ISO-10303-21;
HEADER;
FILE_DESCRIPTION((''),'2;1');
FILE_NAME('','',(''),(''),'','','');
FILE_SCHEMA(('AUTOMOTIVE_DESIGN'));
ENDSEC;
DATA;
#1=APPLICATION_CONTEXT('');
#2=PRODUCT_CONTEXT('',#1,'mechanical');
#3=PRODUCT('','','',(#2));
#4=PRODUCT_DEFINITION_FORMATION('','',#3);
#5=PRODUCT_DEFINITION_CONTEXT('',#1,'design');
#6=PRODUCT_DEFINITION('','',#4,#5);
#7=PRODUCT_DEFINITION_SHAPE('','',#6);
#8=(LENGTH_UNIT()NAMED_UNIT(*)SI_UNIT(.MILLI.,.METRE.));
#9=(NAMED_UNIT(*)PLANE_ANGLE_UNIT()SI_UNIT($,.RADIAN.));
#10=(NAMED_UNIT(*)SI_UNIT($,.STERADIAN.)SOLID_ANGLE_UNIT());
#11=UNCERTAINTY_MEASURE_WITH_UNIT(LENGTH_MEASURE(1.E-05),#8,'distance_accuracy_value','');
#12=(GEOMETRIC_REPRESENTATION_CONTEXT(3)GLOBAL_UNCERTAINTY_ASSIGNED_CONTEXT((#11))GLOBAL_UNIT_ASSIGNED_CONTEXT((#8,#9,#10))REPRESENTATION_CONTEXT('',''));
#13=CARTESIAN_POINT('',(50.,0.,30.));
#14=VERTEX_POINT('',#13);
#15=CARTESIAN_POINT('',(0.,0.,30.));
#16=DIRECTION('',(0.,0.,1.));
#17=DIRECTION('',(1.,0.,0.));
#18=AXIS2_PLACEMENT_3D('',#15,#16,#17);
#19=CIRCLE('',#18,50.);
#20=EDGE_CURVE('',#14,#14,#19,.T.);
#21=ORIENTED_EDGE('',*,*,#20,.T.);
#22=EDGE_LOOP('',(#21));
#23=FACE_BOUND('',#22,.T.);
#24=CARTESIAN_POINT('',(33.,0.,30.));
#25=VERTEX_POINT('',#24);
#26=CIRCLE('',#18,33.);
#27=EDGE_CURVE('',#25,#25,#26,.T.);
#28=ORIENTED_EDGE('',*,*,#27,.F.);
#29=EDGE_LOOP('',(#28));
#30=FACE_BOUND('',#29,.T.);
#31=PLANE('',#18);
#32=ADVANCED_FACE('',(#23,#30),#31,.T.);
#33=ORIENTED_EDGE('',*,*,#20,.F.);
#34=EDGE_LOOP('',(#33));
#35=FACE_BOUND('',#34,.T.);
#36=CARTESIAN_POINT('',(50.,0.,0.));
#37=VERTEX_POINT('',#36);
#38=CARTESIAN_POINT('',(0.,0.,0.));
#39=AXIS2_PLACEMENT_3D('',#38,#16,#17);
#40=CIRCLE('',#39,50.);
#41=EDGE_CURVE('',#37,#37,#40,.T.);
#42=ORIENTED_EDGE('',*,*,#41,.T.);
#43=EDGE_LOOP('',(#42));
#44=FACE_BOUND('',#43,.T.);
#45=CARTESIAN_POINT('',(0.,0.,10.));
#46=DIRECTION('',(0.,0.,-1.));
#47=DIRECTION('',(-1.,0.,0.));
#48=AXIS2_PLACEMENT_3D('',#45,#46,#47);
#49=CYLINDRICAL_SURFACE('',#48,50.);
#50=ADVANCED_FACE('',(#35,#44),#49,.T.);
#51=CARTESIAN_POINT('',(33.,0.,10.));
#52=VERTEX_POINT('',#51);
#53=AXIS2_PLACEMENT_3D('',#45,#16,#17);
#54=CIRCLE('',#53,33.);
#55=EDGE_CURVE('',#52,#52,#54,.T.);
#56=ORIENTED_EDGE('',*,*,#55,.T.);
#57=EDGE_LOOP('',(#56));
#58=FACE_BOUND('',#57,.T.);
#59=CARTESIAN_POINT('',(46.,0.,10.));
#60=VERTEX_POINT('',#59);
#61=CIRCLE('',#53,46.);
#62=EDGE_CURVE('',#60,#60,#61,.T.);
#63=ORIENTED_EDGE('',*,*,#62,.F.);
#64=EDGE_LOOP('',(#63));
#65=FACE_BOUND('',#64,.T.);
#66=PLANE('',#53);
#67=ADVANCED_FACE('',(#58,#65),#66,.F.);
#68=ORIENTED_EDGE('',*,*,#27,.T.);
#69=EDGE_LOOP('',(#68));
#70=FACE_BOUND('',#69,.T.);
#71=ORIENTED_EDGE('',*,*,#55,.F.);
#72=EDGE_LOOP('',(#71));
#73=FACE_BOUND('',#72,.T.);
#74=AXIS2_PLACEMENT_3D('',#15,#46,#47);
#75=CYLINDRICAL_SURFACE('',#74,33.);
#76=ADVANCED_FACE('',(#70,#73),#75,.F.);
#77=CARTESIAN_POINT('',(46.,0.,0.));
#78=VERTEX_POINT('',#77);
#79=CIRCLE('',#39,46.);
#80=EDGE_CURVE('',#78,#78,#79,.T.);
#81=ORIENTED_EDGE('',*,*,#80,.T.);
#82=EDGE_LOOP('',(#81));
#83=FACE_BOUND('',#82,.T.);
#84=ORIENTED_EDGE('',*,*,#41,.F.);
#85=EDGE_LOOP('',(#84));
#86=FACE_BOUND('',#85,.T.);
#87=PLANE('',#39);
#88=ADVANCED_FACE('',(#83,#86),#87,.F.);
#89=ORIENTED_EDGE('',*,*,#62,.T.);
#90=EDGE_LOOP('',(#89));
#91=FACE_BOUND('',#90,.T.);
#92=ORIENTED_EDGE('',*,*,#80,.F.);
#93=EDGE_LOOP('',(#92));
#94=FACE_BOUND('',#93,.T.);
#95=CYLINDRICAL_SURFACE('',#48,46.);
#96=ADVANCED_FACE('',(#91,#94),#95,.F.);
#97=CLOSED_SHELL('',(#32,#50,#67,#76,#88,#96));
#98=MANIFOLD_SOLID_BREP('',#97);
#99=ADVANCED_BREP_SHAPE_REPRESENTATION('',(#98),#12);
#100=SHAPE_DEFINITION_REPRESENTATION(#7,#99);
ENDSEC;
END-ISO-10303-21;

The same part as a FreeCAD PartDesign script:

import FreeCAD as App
import Part
import Sketcher
from FreeCAD import Vector
Q = App.Units.Quantity

doc = App.newDocument("Part")
body = doc.addObject("PartDesign::Body", "Body")

# Sketch on XY plane
sketch1 = body.newObject("Sketcher::SketchObject", "Sketch")
sketch1.AttachmentSupport = (doc.getObject("XY_Plane"), [""])
sketch1.MapMode = "FlatFace"
sketch1.addGeometry([
    Part.Circle(Vector(0, 0, 0), Vector(0, 0, 1), 50),
    Part.Circle(Vector(0, 0, 0), Vector(0, 0, 1), 46),
], False)
sketch1.addConstraint([
    Sketcher.Constraint("Coincident", 0, 3, -1, 1),
    Sketcher.Constraint("Coincident", 1, 3, -1, 1),
    Sketcher.Constraint("Diameter", 0, Q("100 mm")),
    Sketcher.Constraint("Diameter", 1, Q("92 mm")),
])
pad1 = body.newObject("PartDesign::Pad", "Pad")
pad1.Profile = sketch1
pad1.Length = 10

# Sketch on XY plane
sketch2 = body.newObject("Sketcher::SketchObject", "Sketch001")
sketch2.AttachmentSupport = (doc.getObject("XY_Plane"), [""])
sketch2.MapMode = "FlatFace"
sketch2.AttachmentOffset = App.Placement(Vector(0, 0, 10), App.Rotation())
sketch2.addGeometry([
    Part.Circle(Vector(0, 0, 0), Vector(0, 0, 1), 50),
    Part.Circle(Vector(0, 0, 0), Vector(0, 0, 1), 33),
], False)
sketch2.addConstraint([
    Sketcher.Constraint("Coincident", 0, 3, -1, 1),
    Sketcher.Constraint("Coincident", 1, 3, -1, 1),
    Sketcher.Constraint("Diameter", 0, Q("100 mm")),
    Sketcher.Constraint("Diameter", 1, Q("66 mm")),
])
pad2 = body.newObject("PartDesign::Pad", "Pad001")
pad2.Profile = sketch2
pad2.Length = 20

doc.recompute()
